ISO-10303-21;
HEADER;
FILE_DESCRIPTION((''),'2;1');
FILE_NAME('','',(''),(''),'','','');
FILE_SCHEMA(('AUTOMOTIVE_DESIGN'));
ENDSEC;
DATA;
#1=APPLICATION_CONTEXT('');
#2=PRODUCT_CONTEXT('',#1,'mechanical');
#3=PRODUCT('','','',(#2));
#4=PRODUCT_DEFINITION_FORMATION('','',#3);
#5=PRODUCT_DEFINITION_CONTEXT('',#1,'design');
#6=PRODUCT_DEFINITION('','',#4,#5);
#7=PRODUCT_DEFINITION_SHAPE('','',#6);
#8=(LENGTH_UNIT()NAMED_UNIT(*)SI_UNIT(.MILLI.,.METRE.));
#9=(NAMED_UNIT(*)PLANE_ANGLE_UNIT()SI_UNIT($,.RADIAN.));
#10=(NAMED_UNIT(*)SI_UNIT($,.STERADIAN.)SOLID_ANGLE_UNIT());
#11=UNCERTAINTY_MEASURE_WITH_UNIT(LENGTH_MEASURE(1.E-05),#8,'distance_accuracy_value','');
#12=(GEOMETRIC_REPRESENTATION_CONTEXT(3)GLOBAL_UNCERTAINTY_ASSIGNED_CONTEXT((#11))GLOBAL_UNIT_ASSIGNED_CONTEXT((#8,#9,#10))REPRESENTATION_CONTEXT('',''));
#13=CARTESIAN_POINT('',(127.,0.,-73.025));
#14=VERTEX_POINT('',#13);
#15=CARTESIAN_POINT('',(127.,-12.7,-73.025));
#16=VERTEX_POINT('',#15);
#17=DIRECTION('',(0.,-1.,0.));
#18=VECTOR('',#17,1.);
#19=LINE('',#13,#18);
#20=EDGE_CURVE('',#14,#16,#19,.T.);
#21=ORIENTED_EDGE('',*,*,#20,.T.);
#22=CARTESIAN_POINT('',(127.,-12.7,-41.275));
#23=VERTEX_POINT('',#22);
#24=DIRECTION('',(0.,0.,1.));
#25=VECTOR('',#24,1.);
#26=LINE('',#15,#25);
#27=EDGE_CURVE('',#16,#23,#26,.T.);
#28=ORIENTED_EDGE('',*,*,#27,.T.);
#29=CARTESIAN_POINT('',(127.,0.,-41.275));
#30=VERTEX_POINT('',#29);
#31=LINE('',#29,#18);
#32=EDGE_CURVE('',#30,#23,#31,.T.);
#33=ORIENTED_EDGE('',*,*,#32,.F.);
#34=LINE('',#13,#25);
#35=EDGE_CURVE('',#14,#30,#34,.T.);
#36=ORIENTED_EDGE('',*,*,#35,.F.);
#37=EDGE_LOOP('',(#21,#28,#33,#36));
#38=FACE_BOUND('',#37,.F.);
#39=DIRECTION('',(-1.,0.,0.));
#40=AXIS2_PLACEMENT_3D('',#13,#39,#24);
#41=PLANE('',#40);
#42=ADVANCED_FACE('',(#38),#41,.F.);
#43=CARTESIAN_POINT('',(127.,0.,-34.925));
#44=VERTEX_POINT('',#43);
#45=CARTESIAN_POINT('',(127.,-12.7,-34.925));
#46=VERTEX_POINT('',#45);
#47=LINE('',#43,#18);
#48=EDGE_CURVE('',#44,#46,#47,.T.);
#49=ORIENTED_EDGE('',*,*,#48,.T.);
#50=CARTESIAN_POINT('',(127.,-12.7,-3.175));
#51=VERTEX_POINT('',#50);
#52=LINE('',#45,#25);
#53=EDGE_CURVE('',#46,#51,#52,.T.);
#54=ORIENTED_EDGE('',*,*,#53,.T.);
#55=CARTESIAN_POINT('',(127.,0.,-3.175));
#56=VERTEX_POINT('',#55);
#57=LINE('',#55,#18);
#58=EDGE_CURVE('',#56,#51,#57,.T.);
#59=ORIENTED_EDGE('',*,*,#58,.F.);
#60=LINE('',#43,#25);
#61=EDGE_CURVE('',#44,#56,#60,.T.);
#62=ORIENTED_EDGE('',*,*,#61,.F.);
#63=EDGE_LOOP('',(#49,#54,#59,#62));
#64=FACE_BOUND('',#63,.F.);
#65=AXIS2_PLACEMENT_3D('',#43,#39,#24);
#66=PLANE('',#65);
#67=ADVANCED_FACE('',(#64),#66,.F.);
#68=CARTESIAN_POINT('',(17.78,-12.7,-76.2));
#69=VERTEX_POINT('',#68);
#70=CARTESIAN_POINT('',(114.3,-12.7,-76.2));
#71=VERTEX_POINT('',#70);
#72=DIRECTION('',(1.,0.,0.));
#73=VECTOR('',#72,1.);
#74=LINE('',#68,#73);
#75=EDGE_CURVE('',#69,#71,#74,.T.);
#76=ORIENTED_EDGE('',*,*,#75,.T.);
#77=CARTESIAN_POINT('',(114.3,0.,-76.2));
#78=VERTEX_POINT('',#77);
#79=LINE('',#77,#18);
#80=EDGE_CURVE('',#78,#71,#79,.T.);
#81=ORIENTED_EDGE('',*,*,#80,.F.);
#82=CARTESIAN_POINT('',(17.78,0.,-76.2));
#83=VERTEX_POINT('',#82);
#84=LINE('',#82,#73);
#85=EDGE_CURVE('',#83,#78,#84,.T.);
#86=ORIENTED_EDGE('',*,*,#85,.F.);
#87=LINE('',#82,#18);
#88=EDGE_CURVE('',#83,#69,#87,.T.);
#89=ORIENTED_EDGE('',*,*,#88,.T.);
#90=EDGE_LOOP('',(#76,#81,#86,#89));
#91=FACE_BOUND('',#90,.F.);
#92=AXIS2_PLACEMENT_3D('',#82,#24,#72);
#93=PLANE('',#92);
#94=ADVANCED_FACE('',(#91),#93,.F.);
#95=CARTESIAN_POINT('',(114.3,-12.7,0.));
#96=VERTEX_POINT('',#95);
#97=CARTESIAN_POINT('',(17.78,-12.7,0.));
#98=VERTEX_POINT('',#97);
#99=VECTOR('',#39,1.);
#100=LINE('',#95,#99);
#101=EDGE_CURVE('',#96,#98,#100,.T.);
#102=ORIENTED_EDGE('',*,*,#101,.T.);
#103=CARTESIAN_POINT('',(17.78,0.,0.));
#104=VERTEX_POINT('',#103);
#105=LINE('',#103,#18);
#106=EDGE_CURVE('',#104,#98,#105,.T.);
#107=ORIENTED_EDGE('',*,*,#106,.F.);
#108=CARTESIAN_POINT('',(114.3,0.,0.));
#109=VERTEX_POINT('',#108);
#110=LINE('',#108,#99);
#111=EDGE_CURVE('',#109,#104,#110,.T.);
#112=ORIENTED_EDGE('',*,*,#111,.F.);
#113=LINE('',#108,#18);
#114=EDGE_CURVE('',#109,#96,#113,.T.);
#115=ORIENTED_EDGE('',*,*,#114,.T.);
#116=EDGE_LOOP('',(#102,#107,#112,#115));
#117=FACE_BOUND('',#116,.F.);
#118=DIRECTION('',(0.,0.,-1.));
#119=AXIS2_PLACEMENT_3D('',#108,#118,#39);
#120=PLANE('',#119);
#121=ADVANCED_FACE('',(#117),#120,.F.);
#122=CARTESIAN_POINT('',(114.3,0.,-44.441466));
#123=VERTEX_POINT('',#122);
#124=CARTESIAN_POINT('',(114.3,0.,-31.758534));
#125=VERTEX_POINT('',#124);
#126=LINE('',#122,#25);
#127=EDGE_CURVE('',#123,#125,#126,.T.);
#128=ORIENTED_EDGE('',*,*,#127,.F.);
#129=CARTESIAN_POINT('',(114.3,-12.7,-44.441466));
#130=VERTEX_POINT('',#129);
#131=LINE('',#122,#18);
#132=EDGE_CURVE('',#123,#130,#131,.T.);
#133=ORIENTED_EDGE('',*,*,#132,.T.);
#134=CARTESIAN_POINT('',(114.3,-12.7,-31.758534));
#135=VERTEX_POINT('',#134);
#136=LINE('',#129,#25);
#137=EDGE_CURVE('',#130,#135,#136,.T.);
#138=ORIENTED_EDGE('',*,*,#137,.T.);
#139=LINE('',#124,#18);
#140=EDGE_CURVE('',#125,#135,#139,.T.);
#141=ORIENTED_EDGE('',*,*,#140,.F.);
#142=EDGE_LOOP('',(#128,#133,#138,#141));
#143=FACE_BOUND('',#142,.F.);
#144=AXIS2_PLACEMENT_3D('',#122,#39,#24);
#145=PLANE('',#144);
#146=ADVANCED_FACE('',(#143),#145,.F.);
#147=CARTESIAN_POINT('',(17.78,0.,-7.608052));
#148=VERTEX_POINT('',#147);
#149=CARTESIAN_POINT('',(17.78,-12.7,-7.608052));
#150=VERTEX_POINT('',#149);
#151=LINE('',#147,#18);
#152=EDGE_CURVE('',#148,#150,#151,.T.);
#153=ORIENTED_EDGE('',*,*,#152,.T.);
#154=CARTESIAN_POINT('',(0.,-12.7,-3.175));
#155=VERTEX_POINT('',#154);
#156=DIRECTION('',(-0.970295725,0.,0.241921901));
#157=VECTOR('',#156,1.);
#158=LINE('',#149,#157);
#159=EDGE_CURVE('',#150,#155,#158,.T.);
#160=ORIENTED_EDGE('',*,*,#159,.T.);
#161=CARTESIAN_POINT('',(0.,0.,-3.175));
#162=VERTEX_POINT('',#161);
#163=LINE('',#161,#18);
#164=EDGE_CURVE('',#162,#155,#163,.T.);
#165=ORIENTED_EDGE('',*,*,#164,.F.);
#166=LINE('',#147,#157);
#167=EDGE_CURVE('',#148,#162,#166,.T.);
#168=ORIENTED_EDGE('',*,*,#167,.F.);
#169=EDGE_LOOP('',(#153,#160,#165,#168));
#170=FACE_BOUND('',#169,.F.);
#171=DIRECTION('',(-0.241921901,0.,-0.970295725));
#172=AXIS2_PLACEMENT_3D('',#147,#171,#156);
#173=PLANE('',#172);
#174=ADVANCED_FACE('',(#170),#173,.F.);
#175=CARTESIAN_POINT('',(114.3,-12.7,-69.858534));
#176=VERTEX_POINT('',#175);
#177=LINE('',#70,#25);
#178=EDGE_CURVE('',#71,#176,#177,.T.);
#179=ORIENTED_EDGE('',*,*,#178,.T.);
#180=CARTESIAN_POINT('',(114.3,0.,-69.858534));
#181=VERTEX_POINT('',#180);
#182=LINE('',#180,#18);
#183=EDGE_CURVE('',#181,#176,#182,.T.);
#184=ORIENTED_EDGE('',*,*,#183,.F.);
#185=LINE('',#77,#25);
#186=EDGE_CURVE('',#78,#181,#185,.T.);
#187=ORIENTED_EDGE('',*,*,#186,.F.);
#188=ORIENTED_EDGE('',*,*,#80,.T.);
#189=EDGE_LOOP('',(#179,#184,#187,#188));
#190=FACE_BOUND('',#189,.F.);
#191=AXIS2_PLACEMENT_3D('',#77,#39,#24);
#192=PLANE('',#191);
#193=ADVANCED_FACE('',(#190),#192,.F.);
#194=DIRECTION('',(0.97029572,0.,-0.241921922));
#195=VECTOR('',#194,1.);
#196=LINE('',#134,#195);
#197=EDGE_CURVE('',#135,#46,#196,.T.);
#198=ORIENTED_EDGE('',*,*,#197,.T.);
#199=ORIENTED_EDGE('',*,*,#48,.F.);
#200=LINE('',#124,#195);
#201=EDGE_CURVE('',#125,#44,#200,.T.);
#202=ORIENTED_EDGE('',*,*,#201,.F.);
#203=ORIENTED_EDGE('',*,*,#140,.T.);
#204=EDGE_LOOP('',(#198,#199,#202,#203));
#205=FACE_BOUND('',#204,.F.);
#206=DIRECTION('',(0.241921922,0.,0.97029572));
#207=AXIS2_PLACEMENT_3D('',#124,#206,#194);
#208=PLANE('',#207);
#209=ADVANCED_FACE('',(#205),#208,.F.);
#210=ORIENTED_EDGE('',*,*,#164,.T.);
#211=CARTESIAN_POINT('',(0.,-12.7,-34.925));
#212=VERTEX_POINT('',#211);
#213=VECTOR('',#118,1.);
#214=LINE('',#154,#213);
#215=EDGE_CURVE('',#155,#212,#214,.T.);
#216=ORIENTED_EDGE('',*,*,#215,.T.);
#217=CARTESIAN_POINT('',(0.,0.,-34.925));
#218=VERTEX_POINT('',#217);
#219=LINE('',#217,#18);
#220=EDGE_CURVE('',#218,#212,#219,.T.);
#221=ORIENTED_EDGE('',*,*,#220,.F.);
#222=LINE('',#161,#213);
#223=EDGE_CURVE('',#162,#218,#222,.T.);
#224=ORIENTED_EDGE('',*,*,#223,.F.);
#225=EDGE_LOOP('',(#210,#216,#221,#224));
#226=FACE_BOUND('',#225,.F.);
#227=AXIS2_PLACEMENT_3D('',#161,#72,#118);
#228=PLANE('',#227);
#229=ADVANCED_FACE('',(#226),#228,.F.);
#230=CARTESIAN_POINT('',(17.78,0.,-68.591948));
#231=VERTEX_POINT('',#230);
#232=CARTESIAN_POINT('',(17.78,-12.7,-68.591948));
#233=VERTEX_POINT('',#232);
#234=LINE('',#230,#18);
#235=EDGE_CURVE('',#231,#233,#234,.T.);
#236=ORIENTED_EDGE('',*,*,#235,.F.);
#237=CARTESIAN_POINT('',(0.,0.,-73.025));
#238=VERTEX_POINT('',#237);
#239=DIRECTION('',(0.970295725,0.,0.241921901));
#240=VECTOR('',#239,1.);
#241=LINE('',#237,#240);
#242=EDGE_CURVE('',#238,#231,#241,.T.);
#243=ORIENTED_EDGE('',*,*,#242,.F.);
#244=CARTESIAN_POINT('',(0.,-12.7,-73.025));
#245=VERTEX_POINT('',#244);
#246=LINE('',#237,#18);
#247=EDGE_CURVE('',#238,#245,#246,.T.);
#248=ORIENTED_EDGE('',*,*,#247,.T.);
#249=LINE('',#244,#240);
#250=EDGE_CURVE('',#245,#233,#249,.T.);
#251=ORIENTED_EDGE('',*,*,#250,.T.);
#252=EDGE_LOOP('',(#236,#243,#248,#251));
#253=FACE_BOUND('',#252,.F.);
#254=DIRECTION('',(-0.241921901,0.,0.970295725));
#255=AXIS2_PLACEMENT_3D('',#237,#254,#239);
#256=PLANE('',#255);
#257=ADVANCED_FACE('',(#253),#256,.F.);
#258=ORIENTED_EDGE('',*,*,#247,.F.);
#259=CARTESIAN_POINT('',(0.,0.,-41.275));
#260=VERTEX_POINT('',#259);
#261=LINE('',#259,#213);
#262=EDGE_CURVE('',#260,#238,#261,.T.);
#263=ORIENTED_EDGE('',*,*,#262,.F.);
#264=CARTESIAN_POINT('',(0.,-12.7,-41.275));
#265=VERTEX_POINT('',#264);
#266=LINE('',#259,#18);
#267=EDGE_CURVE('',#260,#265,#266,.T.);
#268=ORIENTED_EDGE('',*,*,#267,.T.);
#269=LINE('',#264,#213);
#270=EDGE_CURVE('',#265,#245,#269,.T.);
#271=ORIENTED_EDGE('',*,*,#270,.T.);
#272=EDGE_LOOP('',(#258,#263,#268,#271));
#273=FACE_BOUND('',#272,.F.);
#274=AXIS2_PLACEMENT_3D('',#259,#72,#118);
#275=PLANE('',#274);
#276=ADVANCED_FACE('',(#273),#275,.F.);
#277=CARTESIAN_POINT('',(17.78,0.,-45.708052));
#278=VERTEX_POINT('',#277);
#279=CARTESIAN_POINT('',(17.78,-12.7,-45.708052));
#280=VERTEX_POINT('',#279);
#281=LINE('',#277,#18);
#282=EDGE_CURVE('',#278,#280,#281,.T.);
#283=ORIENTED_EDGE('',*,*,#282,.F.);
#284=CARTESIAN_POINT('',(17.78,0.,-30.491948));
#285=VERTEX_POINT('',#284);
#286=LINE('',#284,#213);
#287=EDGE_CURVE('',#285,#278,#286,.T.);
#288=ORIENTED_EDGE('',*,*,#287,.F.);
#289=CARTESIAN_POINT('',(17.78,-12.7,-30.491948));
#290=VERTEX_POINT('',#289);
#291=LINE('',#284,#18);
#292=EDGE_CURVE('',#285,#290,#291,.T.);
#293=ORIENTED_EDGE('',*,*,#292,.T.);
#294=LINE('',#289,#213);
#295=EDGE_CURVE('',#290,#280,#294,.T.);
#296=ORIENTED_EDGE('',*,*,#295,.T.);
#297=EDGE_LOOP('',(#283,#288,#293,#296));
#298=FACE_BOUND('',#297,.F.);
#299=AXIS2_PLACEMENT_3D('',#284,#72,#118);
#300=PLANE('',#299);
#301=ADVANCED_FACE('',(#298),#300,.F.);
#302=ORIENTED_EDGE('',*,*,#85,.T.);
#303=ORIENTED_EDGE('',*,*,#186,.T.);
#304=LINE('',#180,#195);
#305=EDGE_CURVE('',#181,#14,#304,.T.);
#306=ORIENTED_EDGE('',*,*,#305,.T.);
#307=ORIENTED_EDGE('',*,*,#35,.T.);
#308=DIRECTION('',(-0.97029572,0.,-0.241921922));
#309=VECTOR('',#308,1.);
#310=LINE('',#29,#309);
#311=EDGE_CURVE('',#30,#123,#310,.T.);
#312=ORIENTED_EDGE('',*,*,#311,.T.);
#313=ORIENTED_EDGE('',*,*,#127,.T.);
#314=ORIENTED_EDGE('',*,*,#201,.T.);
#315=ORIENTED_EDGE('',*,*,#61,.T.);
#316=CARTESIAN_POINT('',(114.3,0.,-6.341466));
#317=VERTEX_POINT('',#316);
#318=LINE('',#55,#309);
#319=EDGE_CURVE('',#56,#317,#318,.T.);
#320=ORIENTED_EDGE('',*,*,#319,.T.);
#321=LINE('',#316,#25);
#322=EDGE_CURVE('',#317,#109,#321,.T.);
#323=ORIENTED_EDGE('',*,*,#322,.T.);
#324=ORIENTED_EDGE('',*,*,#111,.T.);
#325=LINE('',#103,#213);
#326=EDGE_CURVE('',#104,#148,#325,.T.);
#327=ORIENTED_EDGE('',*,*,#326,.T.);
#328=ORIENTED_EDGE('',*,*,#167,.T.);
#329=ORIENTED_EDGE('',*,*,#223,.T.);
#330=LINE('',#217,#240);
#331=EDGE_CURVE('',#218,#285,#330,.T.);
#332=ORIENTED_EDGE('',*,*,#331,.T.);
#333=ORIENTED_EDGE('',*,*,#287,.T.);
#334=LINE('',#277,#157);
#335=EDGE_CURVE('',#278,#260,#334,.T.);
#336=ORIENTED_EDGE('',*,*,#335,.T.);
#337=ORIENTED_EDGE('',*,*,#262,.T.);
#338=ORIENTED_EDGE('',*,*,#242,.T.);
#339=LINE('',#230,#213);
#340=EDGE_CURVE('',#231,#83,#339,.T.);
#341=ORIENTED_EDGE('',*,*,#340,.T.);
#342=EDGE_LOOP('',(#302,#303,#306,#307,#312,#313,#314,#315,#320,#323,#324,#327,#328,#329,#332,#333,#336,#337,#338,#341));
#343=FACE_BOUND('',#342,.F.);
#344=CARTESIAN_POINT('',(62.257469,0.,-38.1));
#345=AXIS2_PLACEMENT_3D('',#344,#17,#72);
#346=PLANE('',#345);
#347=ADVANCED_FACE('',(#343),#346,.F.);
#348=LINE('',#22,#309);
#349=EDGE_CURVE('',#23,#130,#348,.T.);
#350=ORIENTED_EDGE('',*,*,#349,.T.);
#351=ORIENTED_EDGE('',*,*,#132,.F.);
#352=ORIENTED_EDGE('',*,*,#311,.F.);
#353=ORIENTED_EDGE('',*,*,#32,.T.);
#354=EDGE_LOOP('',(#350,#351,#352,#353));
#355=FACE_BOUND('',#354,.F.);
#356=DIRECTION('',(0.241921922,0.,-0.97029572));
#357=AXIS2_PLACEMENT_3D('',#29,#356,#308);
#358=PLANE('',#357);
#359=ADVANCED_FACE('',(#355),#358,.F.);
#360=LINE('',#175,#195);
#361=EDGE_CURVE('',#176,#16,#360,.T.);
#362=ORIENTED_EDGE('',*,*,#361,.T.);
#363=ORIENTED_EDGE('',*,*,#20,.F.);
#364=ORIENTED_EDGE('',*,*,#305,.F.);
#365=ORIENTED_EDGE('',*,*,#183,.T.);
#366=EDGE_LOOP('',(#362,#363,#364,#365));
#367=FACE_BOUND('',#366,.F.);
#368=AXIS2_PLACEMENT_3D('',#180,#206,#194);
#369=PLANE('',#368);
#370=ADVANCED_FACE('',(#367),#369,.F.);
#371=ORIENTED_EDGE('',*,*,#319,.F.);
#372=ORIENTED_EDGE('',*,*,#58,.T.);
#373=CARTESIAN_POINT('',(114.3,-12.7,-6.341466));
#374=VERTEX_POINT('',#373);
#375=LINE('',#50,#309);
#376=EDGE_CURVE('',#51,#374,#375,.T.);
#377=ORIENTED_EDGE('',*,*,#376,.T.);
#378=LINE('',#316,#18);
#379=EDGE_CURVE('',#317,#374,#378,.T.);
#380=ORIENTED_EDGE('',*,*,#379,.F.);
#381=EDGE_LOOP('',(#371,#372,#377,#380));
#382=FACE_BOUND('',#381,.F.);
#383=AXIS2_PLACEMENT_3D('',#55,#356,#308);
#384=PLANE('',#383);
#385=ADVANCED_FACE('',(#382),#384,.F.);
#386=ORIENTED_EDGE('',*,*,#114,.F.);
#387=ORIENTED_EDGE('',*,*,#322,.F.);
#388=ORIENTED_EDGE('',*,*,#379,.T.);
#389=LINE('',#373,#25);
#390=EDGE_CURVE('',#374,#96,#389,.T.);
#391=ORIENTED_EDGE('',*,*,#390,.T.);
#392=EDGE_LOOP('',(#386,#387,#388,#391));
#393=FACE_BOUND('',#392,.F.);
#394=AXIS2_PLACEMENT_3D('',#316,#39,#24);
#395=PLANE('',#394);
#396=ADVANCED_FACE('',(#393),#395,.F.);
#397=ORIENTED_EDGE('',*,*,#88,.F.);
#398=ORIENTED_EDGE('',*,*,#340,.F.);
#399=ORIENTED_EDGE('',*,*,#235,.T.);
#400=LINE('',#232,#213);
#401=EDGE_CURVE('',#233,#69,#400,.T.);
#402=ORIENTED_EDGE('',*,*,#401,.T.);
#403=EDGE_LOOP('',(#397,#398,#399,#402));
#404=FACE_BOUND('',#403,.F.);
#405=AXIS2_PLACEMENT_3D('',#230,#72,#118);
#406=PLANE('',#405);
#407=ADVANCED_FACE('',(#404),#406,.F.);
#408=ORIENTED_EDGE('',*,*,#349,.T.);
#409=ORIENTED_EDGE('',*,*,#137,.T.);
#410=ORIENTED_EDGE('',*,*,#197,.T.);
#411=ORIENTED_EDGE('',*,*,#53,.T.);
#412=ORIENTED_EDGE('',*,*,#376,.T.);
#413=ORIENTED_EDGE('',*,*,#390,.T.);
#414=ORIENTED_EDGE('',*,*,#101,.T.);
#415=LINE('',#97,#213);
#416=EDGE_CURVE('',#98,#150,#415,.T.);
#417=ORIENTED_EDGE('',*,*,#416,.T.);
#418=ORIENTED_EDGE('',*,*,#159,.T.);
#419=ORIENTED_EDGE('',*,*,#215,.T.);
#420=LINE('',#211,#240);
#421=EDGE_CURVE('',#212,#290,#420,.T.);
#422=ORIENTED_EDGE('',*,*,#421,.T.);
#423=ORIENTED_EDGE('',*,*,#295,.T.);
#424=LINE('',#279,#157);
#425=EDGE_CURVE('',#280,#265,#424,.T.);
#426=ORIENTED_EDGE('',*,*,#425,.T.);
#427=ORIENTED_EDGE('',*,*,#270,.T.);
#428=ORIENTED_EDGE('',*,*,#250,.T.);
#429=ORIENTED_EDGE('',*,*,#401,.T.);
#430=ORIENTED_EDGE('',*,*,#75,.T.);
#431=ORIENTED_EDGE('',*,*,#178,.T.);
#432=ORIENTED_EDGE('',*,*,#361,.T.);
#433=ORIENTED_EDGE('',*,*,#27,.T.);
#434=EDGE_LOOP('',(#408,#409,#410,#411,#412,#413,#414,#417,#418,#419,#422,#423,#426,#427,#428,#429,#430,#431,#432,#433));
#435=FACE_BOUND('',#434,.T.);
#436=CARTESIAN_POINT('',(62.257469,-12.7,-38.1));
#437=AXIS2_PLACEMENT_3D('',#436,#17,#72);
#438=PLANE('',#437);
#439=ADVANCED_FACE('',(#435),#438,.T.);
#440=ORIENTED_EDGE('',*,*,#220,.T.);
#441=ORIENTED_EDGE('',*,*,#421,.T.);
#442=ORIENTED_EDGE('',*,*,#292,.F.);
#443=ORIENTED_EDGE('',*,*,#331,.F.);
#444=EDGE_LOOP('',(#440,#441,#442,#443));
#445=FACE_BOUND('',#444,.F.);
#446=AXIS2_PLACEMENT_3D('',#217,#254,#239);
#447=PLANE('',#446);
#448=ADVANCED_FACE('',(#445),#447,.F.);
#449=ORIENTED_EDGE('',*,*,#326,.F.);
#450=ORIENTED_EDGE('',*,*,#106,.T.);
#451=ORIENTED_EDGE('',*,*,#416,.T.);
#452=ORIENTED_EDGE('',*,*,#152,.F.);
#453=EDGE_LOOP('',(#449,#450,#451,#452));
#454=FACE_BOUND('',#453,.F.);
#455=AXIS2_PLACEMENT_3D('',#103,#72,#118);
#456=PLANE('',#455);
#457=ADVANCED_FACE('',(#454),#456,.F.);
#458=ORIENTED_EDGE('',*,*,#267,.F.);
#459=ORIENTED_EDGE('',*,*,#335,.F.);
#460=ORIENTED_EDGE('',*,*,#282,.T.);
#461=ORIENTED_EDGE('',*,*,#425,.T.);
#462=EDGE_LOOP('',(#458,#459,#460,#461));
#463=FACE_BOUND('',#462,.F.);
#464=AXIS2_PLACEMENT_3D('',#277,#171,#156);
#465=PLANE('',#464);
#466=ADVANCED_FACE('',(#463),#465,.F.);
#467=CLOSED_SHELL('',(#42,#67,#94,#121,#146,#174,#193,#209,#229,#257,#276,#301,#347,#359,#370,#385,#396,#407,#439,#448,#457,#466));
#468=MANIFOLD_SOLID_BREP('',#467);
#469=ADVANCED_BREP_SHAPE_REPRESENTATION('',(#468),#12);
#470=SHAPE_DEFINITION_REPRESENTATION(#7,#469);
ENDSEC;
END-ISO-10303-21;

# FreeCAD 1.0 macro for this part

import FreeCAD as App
import Part
import Sketcher
from FreeCAD import Vector
Q = App.Units.Quantity


def add_polygon(sketch, points):
    """Adds a closed chain of lines whose ends are joined by coincident constraints."""
    first, n = sketch.GeometryCount, len(points)
    for a, b in zip(points, points[1:] + points[:1]):
        sketch.addGeometry(Part.LineSegment(App.Vector(*a, 0), App.Vector(*b, 0)), False)
    for i in range(n):
        sketch.addConstraint(Sketcher.Constraint("Coincident", first + i, 2, first + (i + 1) % n, 1))

doc = App.newDocument("Part")
body = doc.addObject("PartDesign::Body", "Body")

sketch1 = body.newObject("Sketcher::SketchObject", "Sketch")
sketch1.AttachmentSupport = (doc.getObject("XZ_Plane"), [""])
sketch1.MapMode = "FlatFace"
add_polygon(sketch1, [(114, 0), (18, 0), (18, -8), (0, -3), (0, -35), (18, -30), (18, -46), (0, -41), (0, -73), (18, -69), (18, -76), (114, -76), (114, -70), (127, -73), (127, -41), (114, -44), (114, -32), (127, -35), (127, -3), (114, -6)])
sketch1.addConstraint([
    Sketcher.Constraint("Horizontal", 0),
    Sketcher.Constraint("Vertical", 1),
    Sketcher.Constraint("Vertical", 3),
    Sketcher.Constraint("Vertical", 5),
    Sketcher.Constraint("Vertical", 7),
    Sketcher.Constraint("Vertical", 9),
    Sketcher.Constraint("Horizontal", 10),
    Sketcher.Constraint("Vertical", 11),
    Sketcher.Constraint("Vertical", 13),
    Sketcher.Constraint("Vertical", 15),
    Sketcher.Constraint("Vertical", 17),
    Sketcher.Constraint("Vertical", 19),
    Sketcher.Constraint("PointOnObject", 0, 2, -1),
    Sketcher.Constraint("PointOnObject", 2, 2, -2),
    Sketcher.Constraint("PointOnObject", 6, 2, -2),
    Sketcher.Constraint("Parallel", 2, 6),
    Sketcher.Constraint("Parallel", 4, 8),
    Sketcher.Constraint("Parallel", 6, 12),
    Sketcher.Constraint("Parallel", 8, 14),
    Sketcher.Constraint("Parallel", 12, 16),
    Sketcher.Constraint("Parallel", 14, 18),
    Sketcher.Constraint("Horizontal", 7, 2, 12, 2),
    Sketcher.Constraint("Horizontal", 6, 2, 13, 2),
    Sketcher.Constraint("Horizontal", 3, 2, 16, 2),
    Sketcher.Constraint("Horizontal", 2, 2, 17, 2),
    Sketcher.Constraint("Vertical", 1, 2, 4, 2),
    Sketcher.Constraint("Vertical", 5, 2, 8, 2),
    Sketcher.Constraint("Vertical", 11, 2, 14, 2),
    Sketcher.Constraint("Vertical", 13, 2, 16, 2),
    Sketcher.Constraint("Vertical", 15, 2, 18, 2),
    Sketcher.Constraint("Equal", 3, 7),
    Sketcher.Constraint("Equal", 1, 9),
    Sketcher.Constraint("Equal", 11, 19),
    Sketcher.Constraint("DistanceX", 0, 2, 0, 1, Q("3.8 in")),
    Sketcher.Constraint("DistanceY", 9, 2, -1, 1, Q("3 in")),
    Sketcher.Constraint("DistanceX", -1, 1, 12, 2, Q("5 in")),
    Sketcher.Constraint("Angle", 2, Q("166 deg")),
    Sketcher.Constraint("DistanceY", 3, 2, 3, 1, Q("1.25 in")),
    Sketcher.Constraint("DistanceX", -1, 1, 0, 2, Q("0.7 in")),
    Sketcher.Constraint("DistanceY", 5, 2, 1, 2, Q("1.5 in")),
])
pad1 = body.newObject("PartDesign::Pad", "Pad")
pad1.Profile = sketch1
pad1.Length = Q("0.5 in")

doc.recompute()
